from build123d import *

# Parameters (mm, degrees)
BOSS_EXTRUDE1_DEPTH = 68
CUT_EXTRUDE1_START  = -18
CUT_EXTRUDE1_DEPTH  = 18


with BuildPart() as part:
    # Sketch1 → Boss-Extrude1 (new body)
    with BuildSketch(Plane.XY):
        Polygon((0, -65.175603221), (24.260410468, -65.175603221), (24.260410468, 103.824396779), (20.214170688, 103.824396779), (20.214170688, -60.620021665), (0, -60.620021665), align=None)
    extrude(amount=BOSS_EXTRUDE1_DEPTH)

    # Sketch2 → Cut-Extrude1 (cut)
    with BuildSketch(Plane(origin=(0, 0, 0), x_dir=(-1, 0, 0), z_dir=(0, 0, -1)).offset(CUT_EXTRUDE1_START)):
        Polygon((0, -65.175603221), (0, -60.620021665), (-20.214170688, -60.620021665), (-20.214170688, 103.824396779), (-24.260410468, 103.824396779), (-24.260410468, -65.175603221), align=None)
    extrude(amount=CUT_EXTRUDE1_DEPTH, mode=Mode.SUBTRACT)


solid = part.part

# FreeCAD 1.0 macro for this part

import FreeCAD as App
import Part
import Sketcher
from FreeCAD import Vector
Q = App.Units.Quantity

doc = App.newDocument("Part")
body = doc.addObject("PartDesign::Body", "Body")

# Sketch on XY plane
sketch1 = body.newObject("Sketcher::SketchObject", "Sketch")
sketch1.AttachmentSupport = (doc.getObject("XY_Plane"), [""])
sketch1.MapMode = "FlatFace"
sketch1.addGeometry(Part.LineSegment(Vector(0, -65.2, 0), Vector(24.3, -65.2, 0)), False)
sketch1.addGeometry(Part.LineSegment(Vector(24.3, -65.2, 0), Vector(24.3, 103.8, 0)), False)
sketch1.addGeometry(Part.LineSegment(Vector(24.3, 103.8, 0), Vector(20.2, 103.8, 0)), False)
sketch1.addGeometry(Part.LineSegment(Vector(20.2, 103.8, 0), Vector(20.2, -60.6, 0)), False)
sketch1.addGeometry(Part.LineSegment(Vector(20.2, -60.6, 0), Vector(0, -60.6, 0)), False)
sketch1.addGeometry(Part.LineSegment(Vector(0, -60.6, 0), Vector(0, -65.2, 0)), False)
sketch1.addConstraint(Sketcher.Constraint("Coincident", 0, 2, 1, 1))
sketch1.addConstraint(Sketcher.Constraint("Coincident", 1, 2, 2, 1))
sketch1.addConstraint(Sketcher.Constraint("Coincident", 2, 2, 3, 1))
sketch1.addConstraint(Sketcher.Constraint("Coincident", 3, 2, 4, 1))
sketch1.addConstraint(Sketcher.Constraint("Coincident", 4, 2, 5, 1))
sketch1.addConstraint(Sketcher.Constraint("Coincident", 5, 2, 0, 1))
sketch1.addConstraint(Sketcher.Constraint("Horizontal", 0))
sketch1.addConstraint(Sketcher.Constraint("Vertical", 1))
sketch1.addConstraint(Sketcher.Constraint("Horizontal", 2))
sketch1.addConstraint(Sketcher.Constraint("Vertical", 3))
sketch1.addConstraint(Sketcher.Constraint("Horizontal", 4))
sketch1.addConstraint(Sketcher.Constraint("Vertical", 5))
sketch1.addConstraint(Sketcher.Constraint("PointOnObject", 4, 2, -2))
sketch1.addConstraint(Sketcher.Constraint("DistanceY", 1, 1, 1, 2, Q("169 mm")))
sketch1.addConstraint(Sketcher.Constraint("DistanceX", 0, 1, 0, 2, Q("24.26041 mm")))
sketch1.addConstraint(Sketcher.Constraint("DistanceX", 2, 2, 2, 1, Q("4.04624 mm")))
sketch1.addConstraint(Sketcher.Constraint("DistanceY", 3, 2, 3, 1, Q("164.444418 mm")))
sketch1.addConstraint(Sketcher.Constraint("DistanceY", 3, 2, -1, 1, Q("60.620022 mm")))
pad1 = body.newObject("PartDesign::Pad", "Pad")
pad1.Profile = sketch1
pad1.Length = 68

# Sketch on XY plane
sketch2 = body.newObject("Sketcher::SketchObject", "Sketch001")
sketch2.AttachmentSupport = (doc.getObject("XY_Plane"), [""])
sketch2.MapMode = "FlatFace"
sketch2.AttachmentOffset = App.Placement(Vector(0, 0, 18), App.Rotation())
sketch2.addGeometry(Part.LineSegment(Vector(0, -65.2, 0), Vector(0, -60.6, 0)), False)
sketch2.addGeometry(Part.LineSegment(Vector(0, -60.6, 0), Vector(20.2, -60.6, 0)), False)
sketch2.addGeometry(Part.LineSegment(Vector(20.2, -60.6, 0), Vector(20.2, 103.8, 0)), False)
sketch2.addGeometry(Part.LineSegment(Vector(20.2, 103.8, 0), Vector(24.3, 103.8, 0)), False)
sketch2.addGeometry(Part.LineSegment(Vector(24.3, 103.8, 0), Vector(24.3, -65.2, 0)), False)
sketch2.addGeometry(Part.LineSegment(Vector(24.3, -65.2, 0), Vector(0, -65.2, 0)), False)
sketch2.addConstraint(Sketcher.Constraint("Coincident", 0, 2, 1, 1))
sketch2.addConstraint(Sketcher.Constraint("Coincident", 1, 2, 2, 1))
sketch2.addConstraint(Sketcher.Constraint("Coincident", 2, 2, 3, 1))
sketch2.addConstraint(Sketcher.Constraint("Coincident", 3, 2, 4, 1))
sketch2.addConstraint(Sketcher.Constraint("Coincident", 4, 2, 5, 1))
sketch2.addConstraint(Sketcher.Constraint("Coincident", 5, 2, 0, 1))
sketch2.addConstraint(Sketcher.Constraint("Vertical", 0))
sketch2.addConstraint(Sketcher.Constraint("Horizontal", 1))
sketch2.addConstraint(Sketcher.Constraint("Vertical", 2))
sketch2.addConstraint(Sketcher.Constraint("Horizontal", 3))
sketch2.addConstraint(Sketcher.Constraint("Vertical", 4))
sketch2.addConstraint(Sketcher.Constraint("Horizontal", 5))
sketch2.addConstraint(Sketcher.Constraint("PointOnObject", 0, 2, -2))
sketch2.addConstraint(Sketcher.Constraint("DistanceY", 4, 2, 4, 1, Q("169 mm")))
sketch2.addConstraint(Sketcher.Constraint("DistanceX", 1, 1, 1, 2, Q("20.214171 mm")))
sketch2.addConstraint(Sketcher.Constraint("DistanceX", 3, 1, 3, 2, Q("4.04624 mm")))
sketch2.addConstraint(Sketcher.Constraint("DistanceY", 0, 1, 0, 2, Q("4.555582 mm")))
sketch2.addConstraint(Sketcher.Constraint("DistanceY", 0, 2, -1, 1, Q("60.620022 mm")))
pocket1 = body.newObject("PartDesign::Pocket", "Pocket")
pocket1.Profile = sketch2
pocket1.Length = 18

doc.recompute()
